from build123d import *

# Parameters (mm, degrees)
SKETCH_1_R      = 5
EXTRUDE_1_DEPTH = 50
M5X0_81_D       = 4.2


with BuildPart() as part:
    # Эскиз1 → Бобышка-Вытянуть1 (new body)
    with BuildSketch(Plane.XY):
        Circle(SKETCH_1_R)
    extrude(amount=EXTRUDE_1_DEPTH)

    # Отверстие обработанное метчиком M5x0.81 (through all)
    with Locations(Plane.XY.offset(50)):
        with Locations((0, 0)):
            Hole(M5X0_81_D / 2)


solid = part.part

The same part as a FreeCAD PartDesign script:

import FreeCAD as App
import Part
import Sketcher
from FreeCAD import Vector

doc = App.newDocument("Part")
body = doc.addObject("PartDesign::Body", "Body")

sketch1 = body.newObject("Sketcher::SketchObject", "Sketch")
sketch1.AttachmentSupport = (doc.getObject("XY_Plane"), [""])
sketch1.MapMode = "FlatFace"
sketch1.addGeometry(Part.Circle(Vector(0, 0, 0), Vector(0, 0, 1), 5), False)
sketch1.addConstraint(Sketcher.Constraint("Coincident", 0, 3, -1, 1))
sketch1.addConstraint(Sketcher.Constraint("Diameter", 0, 10.0))
pad1 = body.newObject("PartDesign::Pad", "Pad")
pad1.Profile = sketch1
pad1.Length = 50

sketch2 = body.newObject("Sketcher::SketchObject", "Sketch001")
sketch2.AttachmentSupport = (doc.getObject("XY_Plane"), [""])
sketch2.MapMode = "FlatFace"
sketch2.AttachmentOffset = App.Placement(Vector(0, 0, 50), App.Rotation())
sketch2.addGeometry(Part.Circle(Vector(0, 0, 0), Vector(0, 0, 1), 2.1), False)
sketch2.addConstraint(Sketcher.Constraint("Coincident", 0, 3, -1, 1))
sketch2.addConstraint(Sketcher.Constraint("Diameter", 0, 4.2))
doc.recompute()
hole = body.newObject("PartDesign::Hole", "Hole")
hole.Profile = sketch2
hole.ThreadType = "None"
hole.Diameter = 4.2
hole.DepthType = "ThroughAll"

doc.recompute()
